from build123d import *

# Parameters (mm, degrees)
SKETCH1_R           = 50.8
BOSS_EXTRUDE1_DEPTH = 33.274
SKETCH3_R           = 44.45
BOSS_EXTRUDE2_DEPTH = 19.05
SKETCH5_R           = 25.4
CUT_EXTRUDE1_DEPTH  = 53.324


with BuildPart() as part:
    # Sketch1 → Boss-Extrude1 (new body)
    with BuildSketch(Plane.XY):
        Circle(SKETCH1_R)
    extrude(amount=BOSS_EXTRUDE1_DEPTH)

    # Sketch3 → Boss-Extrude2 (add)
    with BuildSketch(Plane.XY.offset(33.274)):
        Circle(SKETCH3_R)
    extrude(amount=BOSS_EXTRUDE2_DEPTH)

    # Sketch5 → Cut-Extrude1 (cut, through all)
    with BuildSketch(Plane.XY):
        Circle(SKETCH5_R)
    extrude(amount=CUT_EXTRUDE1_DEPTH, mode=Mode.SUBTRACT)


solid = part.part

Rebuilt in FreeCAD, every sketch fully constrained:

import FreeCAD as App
import Part
import Sketcher
from FreeCAD import Vector
Q = App.Units.Quantity

doc = App.newDocument("Part")
body = doc.addObject("PartDesign::Body", "Body")

# Sketch on XY plane
sketch1 = body.newObject("Sketcher::SketchObject", "Sketch")
sketch1.AttachmentSupport = (doc.getObject("XY_Plane"), [""])
sketch1.MapMode = "FlatFace"
sketch1.addGeometry(Part.Circle(Vector(0, 0, 0), Vector(0, 0, 1), 51), False)
sketch1.addConstraint(Sketcher.Constraint("Coincident", 0, 3, -1, 1))
sketch1.addConstraint(Sketcher.Constraint("Diameter", 0, Q("4 in")))
pad1 = body.newObject("PartDesign::Pad", "Pad")
pad1.Profile = sketch1
pad1.Length = Q("1.31 in")

# Sketch on XY plane
sketch2 = body.newObject("Sketcher::SketchObject", "Sketch001")
sketch2.AttachmentSupport = (doc.getObject("XY_Plane"), [""])
sketch2.MapMode = "FlatFace"
sketch2.AttachmentOffset = App.Placement(Vector(0, 0, 1.31 * 25.4), App.Rotation())
sketch2.addGeometry(Part.Circle(Vector(0, 0, 0), Vector(0, 0, 1), 44), False)
sketch2.addConstraint(Sketcher.Constraint("Coincident", 0, 3, -1, 1))
sketch2.addConstraint(Sketcher.Constraint("Diameter", 0, Q("3.5 in")))
pad2 = body.newObject("PartDesign::Pad", "Pad001")
pad2.Profile = sketch2
pad2.Length = Q("0.75 in")

# Sketch on XY plane
sketch3 = body.newObject("Sketcher::SketchObject", "Sketch002")
sketch3.AttachmentSupport = (doc.getObject("XY_Plane"), [""])
sketch3.MapMode = "FlatFace"
sketch3.addGeometry(Part.Circle(Vector(0, 0, 0), Vector(0, 0, 1), 25), False)
sketch3.addConstraint(Sketcher.Constraint("Coincident", 0, 3, -1, 1))
sketch3.addConstraint(Sketcher.Constraint("Diameter", 0, Q("2 in")))
pocket1 = body.newObject("PartDesign::Pocket", "Pocket")
pocket1.Profile = sketch3
pocket1.Type = "ThroughAll"
pocket1.Reversed = True

doc.recompute()
